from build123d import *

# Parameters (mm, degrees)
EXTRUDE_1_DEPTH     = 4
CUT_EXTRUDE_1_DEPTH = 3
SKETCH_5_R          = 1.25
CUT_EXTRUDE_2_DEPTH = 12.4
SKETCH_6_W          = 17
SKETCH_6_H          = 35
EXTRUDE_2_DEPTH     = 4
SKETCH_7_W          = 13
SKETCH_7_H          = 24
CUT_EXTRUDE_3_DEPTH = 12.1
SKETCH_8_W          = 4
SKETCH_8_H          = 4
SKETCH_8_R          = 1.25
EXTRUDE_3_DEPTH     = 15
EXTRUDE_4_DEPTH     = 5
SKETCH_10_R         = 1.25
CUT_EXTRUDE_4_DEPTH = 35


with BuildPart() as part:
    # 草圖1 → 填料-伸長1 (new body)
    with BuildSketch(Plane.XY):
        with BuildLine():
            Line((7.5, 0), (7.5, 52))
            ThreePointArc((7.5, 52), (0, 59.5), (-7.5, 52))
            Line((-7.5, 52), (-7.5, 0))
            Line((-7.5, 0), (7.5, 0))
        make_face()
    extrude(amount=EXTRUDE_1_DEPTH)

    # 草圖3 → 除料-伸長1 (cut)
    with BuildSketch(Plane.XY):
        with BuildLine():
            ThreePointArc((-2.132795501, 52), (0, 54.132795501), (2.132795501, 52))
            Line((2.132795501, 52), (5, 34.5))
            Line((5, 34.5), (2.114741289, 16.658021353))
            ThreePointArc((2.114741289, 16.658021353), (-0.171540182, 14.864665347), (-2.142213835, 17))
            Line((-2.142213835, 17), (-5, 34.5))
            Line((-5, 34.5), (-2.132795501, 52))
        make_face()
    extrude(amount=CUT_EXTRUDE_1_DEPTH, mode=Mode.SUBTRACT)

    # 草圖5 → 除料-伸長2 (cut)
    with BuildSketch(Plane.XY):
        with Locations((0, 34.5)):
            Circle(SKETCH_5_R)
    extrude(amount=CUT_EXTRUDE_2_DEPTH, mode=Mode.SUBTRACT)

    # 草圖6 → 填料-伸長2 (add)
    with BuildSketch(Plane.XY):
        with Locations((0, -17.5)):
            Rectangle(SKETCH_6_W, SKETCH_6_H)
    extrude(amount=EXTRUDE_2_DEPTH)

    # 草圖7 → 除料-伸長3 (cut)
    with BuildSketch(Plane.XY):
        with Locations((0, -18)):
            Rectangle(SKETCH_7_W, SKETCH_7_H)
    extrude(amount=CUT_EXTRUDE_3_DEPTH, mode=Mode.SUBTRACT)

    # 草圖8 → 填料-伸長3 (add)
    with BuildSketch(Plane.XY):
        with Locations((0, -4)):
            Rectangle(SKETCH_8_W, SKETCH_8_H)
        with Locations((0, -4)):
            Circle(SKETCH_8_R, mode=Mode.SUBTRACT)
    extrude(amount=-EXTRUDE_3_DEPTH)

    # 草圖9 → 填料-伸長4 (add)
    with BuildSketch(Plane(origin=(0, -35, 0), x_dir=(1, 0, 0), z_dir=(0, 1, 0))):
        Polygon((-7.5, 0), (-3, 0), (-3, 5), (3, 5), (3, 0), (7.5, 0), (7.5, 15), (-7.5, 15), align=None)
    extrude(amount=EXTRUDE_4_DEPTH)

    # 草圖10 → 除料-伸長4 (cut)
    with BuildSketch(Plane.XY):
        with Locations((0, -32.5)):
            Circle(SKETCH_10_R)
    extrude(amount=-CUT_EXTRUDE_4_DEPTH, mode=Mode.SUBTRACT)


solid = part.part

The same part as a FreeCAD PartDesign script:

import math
import FreeCAD as App
import Part
import Sketcher
Q = App.Units.Quantity

doc = App.newDocument("Part")
params = doc.addObject("Spreadsheet::Sheet", "Params")
for row, (alias, value) in enumerate([
    ("sketch1_radius", "7.5 mm"),
    ("sketch1_height", "52 mm"),
    ("pad1_length", "4 mm"),
    ("pocket1_length", "3 mm"),
    ("sketch3_diameter", "2.5 mm"),
    ("pocket2_length", "12.4 mm"),
    ("sketch4_width", "17 mm"),
    ("sketch4_height", "35 mm"),
    ("pad2_length", "4 mm"),
    ("sketch5_width", "13 mm"),
    ("sketch5_height", "24 mm"),
    ("pocket3_length", "12.1 mm"),
    ("sketch6_diameter", "2.5 mm"),
    ("sketch6_width", "4 mm"),
    ("pad3_length", "15 mm"),
    ("sketch7_width", "6 mm"),
    ("sketch7_width2", "15 mm"),
    ("sketch7_height", "5 mm"),
    ("pad4_length", "5 mm"),
    ("sketch8_diameter", "2.5 mm"),
    ("pocket4_length", "35 mm"),
], start=1):
    params.set(f"A{row}", alias)
    params.set(f"B{row}", "=" + value)
    params.setAlias(f"B{row}", alias)

body = doc.addObject("PartDesign::Body", "Body")

# Sketch on XY plane
sketch1 = body.newObject("Sketcher::SketchObject", "Sketch")
sketch1.AttachmentSupport = (doc.getObject("XY_Plane"), [""])
sketch1.MapMode = "FlatFace"
sketch1.addGeometry(Part.LineSegment(App.Vector(8, 0, 0), App.Vector(8, 52, 0)), False)
sketch1.addGeometry(Part.ArcOfCircle(Part.Circle(App.Vector(0, 52, 0), App.Vector(0, 0, 1), 8), math.radians(0), math.radians(180)), False)
sketch1.addGeometry(Part.LineSegment(App.Vector(-8, 52, 0), App.Vector(-8, 0, 0)), False)
sketch1.addGeometry(Part.LineSegment(App.Vector(-8, 0, 0), App.Vector(8, 0, 0)), False)
sketch1.addConstraint(Sketcher.Constraint("Tangent", 0, 2, 1, 1))
sketch1.addConstraint(Sketcher.Constraint("Tangent", 1, 2, 2, 1))
sketch1.addConstraint(Sketcher.Constraint("Coincident", 2, 2, 3, 1))
sketch1.addConstraint(Sketcher.Constraint("Coincident", 3, 2, 0, 1))
sketch1.addConstraint(Sketcher.Constraint("Vertical", 0))
sketch1.addConstraint(Sketcher.Constraint("Vertical", 2))
sketch1.addConstraint(Sketcher.Constraint("Horizontal", 3))
sketch1.addConstraint(Sketcher.Constraint("Symmetric", 2, 2, 3, 2, -1, 1))
sketch1.addConstraint(Sketcher.Constraint("Radius", 1, Q("7.5 mm")))
sketch1.addConstraint(Sketcher.Constraint("DistanceY", 0, 1, 0, 2, Q("52 mm")))
sketch1.setExpression("Constraints[8]", "Params.sketch1_radius")
sketch1.setExpression("Constraints[9]", "Params.sketch1_height")
pad1 = body.newObject("PartDesign::Pad", "Pad")
pad1.Profile = sketch1
pad1.setExpression("Length", "Params.pad1_length")

# Sketch on XY plane
sketch2 = body.newObject("Sketcher::SketchObject", "Sketch001")
sketch2.AttachmentSupport = (doc.getObject("XY_Plane"), [""])
sketch2.MapMode = "FlatFace"
sketch2.addGeometry(Part.ArcOfCircle(Part.Circle(App.Vector(0, 52, 0), App.Vector(0, 0, 1), 2.1), math.radians(0), math.radians(180)), False)
sketch2.addGeometry(Part.LineSegment(App.Vector(-2.1, 52, 0), App.Vector(-5, 34.5, 0)), False)
sketch2.addGeometry(Part.LineSegment(App.Vector(-5, 34.5, 0), App.Vector(-2.1, 17, 0)), False)
sketch2.addGeometry(Part.ArcOfCircle(Part.Circle(App.Vector(0, 17, 0), App.Vector(0, 0, 1), 2.1), math.radians(180), math.radians(351)), False)
sketch2.addGeometry(Part.LineSegment(App.Vector(2.1, 16.7, 0), App.Vector(5, 34.5, 0)), False)
sketch2.addGeometry(Part.LineSegment(App.Vector(5, 34.5, 0), App.Vector(2.1, 52, 0)), False)
sketch2.addConstraint(Sketcher.Constraint("Coincident", 0, 2, 1, 1))
sketch2.addConstraint(Sketcher.Constraint("Coincident", 1, 2, 2, 1))
sketch2.addConstraint(Sketcher.Constraint("Coincident", 2, 2, 3, 1))
sketch2.addConstraint(Sketcher.Constraint("Tangent", 3, 2, 4, 1))
sketch2.addConstraint(Sketcher.Constraint("Coincident", 4, 2, 5, 1))
sketch2.addConstraint(Sketcher.Constraint("Coincident", 5, 2, 0, 1))
sketch2.addConstraint(Sketcher.Constraint("Symmetric", 1, 2, 4, 2, -2))
sketch2.addConstraint(Sketcher.Constraint("Symmetric", 0, 2, 5, 2, -2))
sketch2.addConstraint(Sketcher.Constraint("PointOnObject", 3, 3, -2))
sketch2.addConstraint(Sketcher.Constraint("Horizontal", 3, 3, 2, 2))
sketch2.addConstraint(Sketcher.Constraint("DistanceY", -1, 1, 0, 3, Q("52 mm")))
sketch2.addConstraint(Sketcher.Constraint("DistanceY", -1, 1, 3, 3, Q("17 mm")))
sketch2.addConstraint(Sketcher.Constraint("DistanceY", -1, 1, 0, 2, Q("52 mm")))
sketch2.addConstraint(Sketcher.Constraint("DistanceX", 1, 2, -1, 1, Q("5 mm")))
sketch2.addConstraint(Sketcher.Constraint("DistanceY", -1, 1, 1, 2, Q("34.5 mm")))
sketch2.addConstraint(Sketcher.Constraint("Radius", 0, Q("2.132796 mm")))
sketch2.addConstraint(Sketcher.Constraint("Radius", 3, Q("2.142214 mm")))
pocket1 = body.newObject("PartDesign::Pocket", "Pocket")
pocket1.Profile = sketch2
pocket1.setExpression("Length", "Params.pocket1_length")
pocket1.Reversed = True

# Sketch on XY plane
sketch3 = body.newObject("Sketcher::SketchObject", "Sketch002")
sketch3.AttachmentSupport = (doc.getObject("XY_Plane"), [""])
sketch3.MapMode = "FlatFace"
sketch3.addGeometry(Part.Circle(App.Vector(0, 34.5, 0), App.Vector(0, 0, 1), 1.2), False)
sketch3.addConstraint(Sketcher.Constraint("PointOnObject", 0, 3, -2))
sketch3.addConstraint(Sketcher.Constraint("Diameter", 0, Q("2.5 mm")))
sketch3.addConstraint(Sketcher.Constraint("DistanceY", -1, 1, 0, 3, Q("34.5 mm")))
sketch3.setExpression("Constraints[1]", "Params.sketch3_diameter")
pocket2 = body.newObject("PartDesign::Pocket", "Pocket001")
pocket2.Profile = sketch3
pocket2.setExpression("Length", "Params.pocket2_length")
pocket2.Reversed = True

# Sketch on XY plane
sketch4 = body.newObject("Sketcher::SketchObject", "Sketch003")
sketch4.AttachmentSupport = (doc.getObject("XY_Plane"), [""])
sketch4.MapMode = "FlatFace"
sketch4.addGeometry(Part.LineSegment(App.Vector(-8, 0, 0), App.Vector(-8, -35, 0)), False)
sketch4.addGeometry(Part.LineSegment(App.Vector(-8, -35, 0), App.Vector(8, -35, 0)), False)
sketch4.addGeometry(Part.LineSegment(App.Vector(8, -35, 0), App.Vector(8, 0, 0)), False)
sketch4.addGeometry(Part.LineSegment(App.Vector(8, 0, 0), App.Vector(-8, 0, 0)), False)
sketch4.addConstraint(Sketcher.Constraint("Coincident", 0, 2, 1, 1))
sketch4.addConstraint(Sketcher.Constraint("Coincident", 1, 2, 2, 1))
sketch4.addConstraint(Sketcher.Constraint("Coincident", 2, 2, 3, 1))
sketch4.addConstraint(Sketcher.Constraint("Coincident", 3, 2, 0, 1))
sketch4.addConstraint(Sketcher.Constraint("Vertical", 0))
sketch4.addConstraint(Sketcher.Constraint("Horizontal", 1))
sketch4.addConstraint(Sketcher.Constraint("Vertical", 2))
sketch4.addConstraint(Sketcher.Constraint("Horizontal", 3))
sketch4.addConstraint(Sketcher.Constraint("Symmetric", 2, 2, 3, 2, -1, 1))
sketch4.addConstraint(Sketcher.Constraint("DistanceX", 1, 1, 1, 2, Q("17 mm")))
sketch4.addConstraint(Sketcher.Constraint("DistanceY", 0, 2, 0, 1, Q("35 mm")))
sketch4.setExpression("Constraints[9]", "Params.sketch4_width")
sketch4.setExpression("Constraints[10]", "Params.sketch4_height")
pad2 = body.newObject("PartDesign::Pad", "Pad001")
pad2.Profile = sketch4
pad2.setExpression("Length", "Params.pad2_length")

# Sketch on XY plane
sketch5 = body.newObject("Sketcher::SketchObject", "Sketch004")
sketch5.AttachmentSupport = (doc.getObject("XY_Plane"), [""])
sketch5.MapMode = "FlatFace"
sketch5.addGeometry(Part.LineSegment(App.Vector(-6, -6, 0), App.Vector(-6, -30, 0)), False)
sketch5.addGeometry(Part.LineSegment(App.Vector(-6, -30, 0), App.Vector(6, -30, 0)), False)
sketch5.addGeometry(Part.LineSegment(App.Vector(6, -30, 0), App.Vector(6, -6, 0)), False)
sketch5.addGeometry(Part.LineSegment(App.Vector(6, -6, 0), App.Vector(-6, -6, 0)), False)
sketch5.addConstraint(Sketcher.Constraint("Coincident", 0, 2, 1, 1))
sketch5.addConstraint(Sketcher.Constraint("Coincident", 1, 2, 2, 1))
sketch5.addConstraint(Sketcher.Constraint("Coincident", 2, 2, 3, 1))
sketch5.addConstraint(Sketcher.Constraint("Coincident", 3, 2, 0, 1))
sketch5.addConstraint(Sketcher.Constraint("Vertical", 0))
sketch5.addConstraint(Sketcher.Constraint("Horizontal", 1))
sketch5.addConstraint(Sketcher.Constraint("Vertical", 2))
sketch5.addConstraint(Sketcher.Constraint("Horizontal", 3))
sketch5.addConstraint(Sketcher.Constraint("DistanceX", 1, 1, 1, 2, Q("13 mm")))
sketch5.addConstraint(Sketcher.Constraint("DistanceY", 0, 2, 0, 1, Q("24 mm")))
sketch5.addConstraint(Sketcher.Constraint("DistanceY", 0, 2, -1, 1, Q("30 mm")))
sketch5.addConstraint(Sketcher.Constraint("DistanceX", 0, 2, -1, 1, Q("6.5 mm")))
sketch5.setExpression("Constraints[8]", "Params.sketch5_width")
sketch5.setExpression("Constraints[9]", "Params.sketch5_height")
pocket3 = body.newObject("PartDesign::Pocket", "Pocket002")
pocket3.Profile = sketch5
pocket3.setExpression("Length", "Params.pocket3_length")
pocket3.Reversed = True

# Sketch on XY plane
sketch6 = body.newObject("Sketcher::SketchObject", "Sketch005")
sketch6.AttachmentSupport = (doc.getObject("XY_Plane"), [""])
sketch6.MapMode = "FlatFace"
sketch6.addGeometry(Part.LineSegment(App.Vector(-2, -2, 0), App.Vector(-2, -6, 0)), False)
sketch6.addGeometry(Part.LineSegment(App.Vector(-2, -6, 0), App.Vector(2, -6, 0)), False)
sketch6.addGeometry(Part.LineSegment(App.Vector(2, -6, 0), App.Vector(2, -2, 0)), False)
sketch6.addGeometry(Part.LineSegment(App.Vector(2, -2, 0), App.Vector(-2, -2, 0)), False)
sketch6.addGeometry(Part.Circle(App.Vector(0, -4, 0), App.Vector(0, 0, 1), 1.2), False)
sketch6.addConstraint(Sketcher.Constraint("Coincident", 0, 2, 1, 1))
sketch6.addConstraint(Sketcher.Constraint("Coincident", 1, 2, 2, 1))
sketch6.addConstraint(Sketcher.Constraint("Coincident", 2, 2, 3, 1))
sketch6.addConstraint(Sketcher.Constraint("Coincident", 3, 2, 0, 1))
sketch6.addConstraint(Sketcher.Constraint("Vertical", 0))
sketch6.addConstraint(Sketcher.Constraint("Horizontal", 1))
sketch6.addConstraint(Sketcher.Constraint("Vertical", 2))
sketch6.addConstraint(Sketcher.Constraint("Horizontal", 3))
sketch6.addConstraint(Sketcher.Constraint("PointOnObject", 4, 3, -2))
sketch6.addConstraint(Sketcher.Constraint("Equal", 3, 0))
sketch6.addConstraint(Sketcher.Constraint("Diameter", 4, Q("2.5 mm")))
sketch6.addConstraint(Sketcher.Constraint("DistanceX", 1, 1, 1, 2, Q("4 mm")))
sketch6.addConstraint(Sketcher.Constraint("DistanceY", 4, 3, -1, 1, Q("4 mm")))
sketch6.addConstraint(Sketcher.Constraint("DistanceX", 0, 2, -1, 1, Q("2 mm")))
sketch6.addConstraint(Sketcher.Constraint("DistanceY", 0, 2, -1, 1, Q("6 mm")))
sketch6.setExpression("Constraints[10]", "Params.sketch6_diameter")
sketch6.setExpression("Constraints[11]", "Params.sketch6_width")
pad3 = body.newObject("PartDesign::Pad", "Pad002")
pad3.Profile = sketch6
pad3.setExpression("Length", "Params.pad3_length")
pad3.Reversed = True

# Sketch on XZ plane
sketch7 = body.newObject("Sketcher::SketchObject", "Sketch006")
sketch7.AttachmentSupport = (doc.getObject("XZ_Plane"), [""])
sketch7.MapMode = "FlatFace"
sketch7.AttachmentOffset = App.Placement(App.Vector(0, 0, 35), App.Rotation())
sketch7.addGeometry(Part.LineSegment(App.Vector(-7.5, 0, 0), App.Vector(-3, 0, 0)), False)
sketch7.addGeometry(Part.LineSegment(App.Vector(-3, 0, 0), App.Vector(-3, -5, 0)), False)
sketch7.addGeometry(Part.LineSegment(App.Vector(-3, -5, 0), App.Vector(3, -5, 0)), False)
sketch7.addGeometry(Part.LineSegment(App.Vector(3, -5, 0), App.Vector(3, 0, 0)), False)
sketch7.addGeometry(Part.LineSegment(App.Vector(3, 0, 0), App.Vector(7.5, 0, 0)), False)
sketch7.addGeometry(Part.LineSegment(App.Vector(7.5, 0, 0), App.Vector(7.5, -15, 0)), False)
sketch7.addGeometry(Part.LineSegment(App.Vector(7.5, -15, 0), App.Vector(-7.5, -15, 0)), False)
sketch7.addGeometry(Part.LineSegment(App.Vector(-7.5, -15, 0), App.Vector(-7.5, 0, 0)), False)
sketch7.addConstraint(Sketcher.Constraint("Coincident", 0, 2, 1, 1))
sketch7.addConstraint(Sketcher.Constraint("Coincident", 1, 2, 2, 1))
sketch7.addConstraint(Sketcher.Constraint("Coincident", 2, 2, 3, 1))
sketch7.addConstraint(Sketcher.Constraint("Coincident", 3, 2, 4, 1))
sketch7.addConstraint(Sketcher.Constraint("Coincident", 4, 2, 5, 1))
sketch7.addConstraint(Sketcher.Constraint("Coincident", 5, 2, 6, 1))
sketch7.addConstraint(Sketcher.Constraint("Coincident", 6, 2, 7, 1))
sketch7.addConstraint(Sketcher.Constraint("Coincident", 7, 2, 0, 1))
sketch7.addConstraint(Sketcher.Constraint("Horizontal", 0))
sketch7.addConstraint(Sketcher.Constraint("Vertical", 1))
sketch7.addConstraint(Sketcher.Constraint("Horizontal", 2))
sketch7.addConstraint(Sketcher.Constraint("Vertical", 3))
sketch7.addConstraint(Sketcher.Constraint("Horizontal", 4))
sketch7.addConstraint(Sketcher.Constraint("Vertical", 5))
sketch7.addConstraint(Sketcher.Constraint("Horizontal", 6))
sketch7.addConstraint(Sketcher.Constraint("Vertical", 7))
sketch7.addConstraint(Sketcher.Constraint("Symmetric", 0, 2, 3, 2, -1, 1))
sketch7.addConstraint(Sketcher.Constraint("Symmetric", 4, 2, 7, 2, -2))
sketch7.addConstraint(Sketcher.Constraint("Equal", 6, 5))
sketch7.addConstraint(Sketcher.Constraint("DistanceX", 2, 1, 2, 2, Q("6 mm")))
sketch7.addConstraint(Sketcher.Constraint("DistanceX", 6, 2, 6, 1, Q("15 mm")))
sketch7.addConstraint(Sketcher.Constraint("DistanceY", 1, 2, 1, 1, Q("5 mm")))
sketch7.setExpression("Constraints[19]", "Params.sketch7_width")
sketch7.setExpression("Constraints[20]", "Params.sketch7_width2")
sketch7.setExpression("Constraints[21]", "Params.sketch7_height")
pad4 = body.newObject("PartDesign::Pad", "Pad003")
pad4.Profile = sketch7
pad4.setExpression("Length", "Params.pad4_length")
pad4.Reversed = True

# Sketch on XY plane
sketch8 = body.newObject("Sketcher::SketchObject", "Sketch007")
sketch8.AttachmentSupport = (doc.getObject("XY_Plane"), [""])
sketch8.MapMode = "FlatFace"
sketch8.addGeometry(Part.Circle(App.Vector(0, -32.5, 0), App.Vector(0, 0, 1), 1.2), False)
sketch8.addConstraint(Sketcher.Constraint("PointOnObject", 0, 3, -2))
sketch8.addConstraint(Sketcher.Constraint("Diameter", 0, Q("2.5 mm")))
sketch8.addConstraint(Sketcher.Constraint("DistanceY", 0, 3, -1, 1, Q("32.5 mm")))
sketch8.setExpression("Constraints[1]", "Params.sketch8_diameter")
pocket4 = body.newObject("PartDesign::Pocket", "Pocket003")
pocket4.Profile = sketch8
pocket4.setExpression("Length", "Params.pocket4_length")

doc.recompute()
